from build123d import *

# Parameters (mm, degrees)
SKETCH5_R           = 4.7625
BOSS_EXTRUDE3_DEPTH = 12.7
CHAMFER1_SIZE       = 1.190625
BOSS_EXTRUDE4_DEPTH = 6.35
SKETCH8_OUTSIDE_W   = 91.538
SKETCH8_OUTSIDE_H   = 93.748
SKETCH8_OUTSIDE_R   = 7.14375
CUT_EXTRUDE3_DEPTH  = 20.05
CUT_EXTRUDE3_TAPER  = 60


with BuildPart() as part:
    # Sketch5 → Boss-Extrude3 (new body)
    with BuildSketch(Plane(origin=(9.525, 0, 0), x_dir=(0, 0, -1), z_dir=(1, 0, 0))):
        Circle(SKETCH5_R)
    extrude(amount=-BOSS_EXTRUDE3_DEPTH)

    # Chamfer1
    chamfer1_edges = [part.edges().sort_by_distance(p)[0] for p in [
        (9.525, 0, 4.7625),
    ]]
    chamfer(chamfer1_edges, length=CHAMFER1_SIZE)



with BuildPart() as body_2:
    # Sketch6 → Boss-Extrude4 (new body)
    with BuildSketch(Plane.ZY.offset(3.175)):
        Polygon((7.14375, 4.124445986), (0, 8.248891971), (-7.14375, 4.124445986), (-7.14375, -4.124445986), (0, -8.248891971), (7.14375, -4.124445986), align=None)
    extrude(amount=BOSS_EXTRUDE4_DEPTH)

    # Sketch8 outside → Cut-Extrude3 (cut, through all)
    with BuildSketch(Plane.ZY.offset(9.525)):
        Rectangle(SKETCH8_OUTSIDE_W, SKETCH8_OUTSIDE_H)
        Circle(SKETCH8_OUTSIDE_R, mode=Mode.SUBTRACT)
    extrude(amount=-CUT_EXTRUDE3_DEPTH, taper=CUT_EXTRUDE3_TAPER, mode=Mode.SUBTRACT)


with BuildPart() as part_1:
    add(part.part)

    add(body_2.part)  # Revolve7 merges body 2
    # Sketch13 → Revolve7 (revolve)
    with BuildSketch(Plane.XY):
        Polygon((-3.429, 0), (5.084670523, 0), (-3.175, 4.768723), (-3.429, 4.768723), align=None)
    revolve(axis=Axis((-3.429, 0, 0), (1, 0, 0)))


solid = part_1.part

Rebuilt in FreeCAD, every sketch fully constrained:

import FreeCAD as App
import Part
import Sketcher

V = App.Vector
Q = App.Units.Quantity


def edges_at(feature, points):
    """Names of the edges that pass closest to the given points."""
    edges = feature.Shape.Edges
    near = lambda p: min(range(len(edges)), key=lambda i: edges[i].distToShape(Part.Vertex(*p))[0])
    return sorted({f"Edge{near(p) + 1}" for p in points})


def add_polygon(sketch, points):
    """Adds a closed chain of lines whose ends are joined by coincident constraints."""
    first, n = sketch.GeometryCount, len(points)
    for a, b in zip(points, points[1:] + points[:1]):
        sketch.addGeometry(Part.LineSegment(App.Vector(*a, 0), App.Vector(*b, 0)), False)
    for i in range(n):
        sketch.addConstraint(Sketcher.Constraint("Coincident", first + i, 2, first + (i + 1) % n, 1))

doc = App.newDocument("Part")
body = doc.addObject("PartDesign::Body", "Body")

# Sketch on YZ plane
sketch1 = body.newObject("Sketcher::SketchObject", "Sketch")
sketch1.AttachmentSupport = (doc.getObject("YZ_Plane"), [""])
sketch1.MapMode = "FlatFace"
sketch1.AttachmentOffset = App.Placement(V(0, 0, 0.375 * 25.4), App.Rotation())
sketch1.addGeometry(Part.Circle(V(0, 0, 0), V(0, 0, 1), 4.7625), False)
sketch1.addConstraint([
    Sketcher.Constraint("Coincident", 0, 3, -1, 1),
    Sketcher.Constraint("Diameter", 0, Q("0.375 in")),
])
pad1 = body.newObject("PartDesign::Pad", "Pad")
pad1.Profile = sketch1
pad1.Length = Q("0.5 in")
pad1.Reversed = True
doc.recompute()

chamfer = body.newObject("PartDesign::Chamfer", "Chamfer")
chamfer.Base = (pad1, edges_at(pad1, [(9.525, 0, 4.763)]))
chamfer.Size = Q("0.046875 in")
body2 = doc.addObject("PartDesign::Body", "Body001")

# Sketch on YZ plane
sketch2 = body2.newObject("Sketcher::SketchObject", "Sketch001")
sketch2.AttachmentSupport = (doc.getObject("YZ_Plane001"), [""])
sketch2.MapMode = "FlatFace"
sketch2.AttachmentOffset = App.Placement(V(0, 0, -0.125 * 25.4), App.Rotation())
add_polygon(sketch2, [(4.124446, 7.14375), (8.248892, 0), (4.124446, -7.14375), (-4.124446, -7.14375), (-8.248892, 0), (-4.124446, 7.14375)])  # lines 0-5
sketch2.addConstraint([
    Sketcher.Constraint("Horizontal", 2),
    Sketcher.Constraint("Horizontal", 5),
    Sketcher.Constraint("Symmetric", 0, 2, 3, 2, -1, 1),
    Sketcher.Constraint("Symmetric", 1, 2, 4, 2, -1, 1),
    Sketcher.Constraint("PointOnObject", 0, 2, -1),
    Sketcher.Constraint("Parallel", 0, 3),
    Sketcher.Constraint("Vertical", 2, 2, 4, 2),
    Sketcher.Constraint("Angle", 0, Q("-60 deg")),
    Sketcher.Constraint("DistanceY", 1, 2, -1, 1, Q("0.28125 in")),
    Sketcher.Constraint("DistanceX", 2, 2, 2, 1, 8.248892),
])
pad2 = body2.newObject("PartDesign::Pad", "Pad001")
pad2.Profile = sketch2
pad2.Length = Q("0.25 in")
pad2.Reversed = True

# Sketch on YZ plane
sketch3 = body2.newObject("Sketcher::SketchObject", "Sketch002")
sketch3.AttachmentSupport = (doc.getObject("YZ_Plane001"), [""])
sketch3.MapMode = "FlatFace"
sketch3.AttachmentOffset = App.Placement(V(0, 0, -0.375 * 25.4), App.Rotation())
add_polygon(sketch3, [(46.874, -45.769), (-46.874, -45.769), (-46.874, 45.769), (46.874, 45.769)])  # lines 0-3
sketch3.addGeometry(Part.Circle(V(0, 0, 0), V(0, 0, 1), 7.14375), False)  # 4
sketch3.addConstraint([
    Sketcher.Constraint("Horizontal", 0),
    Sketcher.Constraint("Vertical", 1),
    Sketcher.Constraint("Horizontal", 2),
    Sketcher.Constraint("Vertical", 3),
    Sketcher.Constraint("Coincident", 4, 3, -1, 1),
    Sketcher.Constraint("Symmetric", 0, 2, 2, 2, -1, 1),
    Sketcher.Constraint("Diameter", 4, Q("0.5625 in")),
    Sketcher.Constraint("DistanceX", 0, 2, 0, 1, 93.748),
    Sketcher.Constraint("DistanceY", 1, 1, 1, 2, 91.538),
])
pocket1 = body2.newObject("PartDesign::Pocket", "Pocket")
pocket1.Profile = sketch3
pocket1.Length = 20.05
pocket1.Reversed = True
pocket1.TaperAngle = 60
doc.recompute()

boolean = body.newObject("PartDesign::Boolean", "Boolean")
boolean.Type = "Fuse"
boolean.addObjects([body2])

# Sketch on XY plane
sketch4 = body.newObject("Sketcher::SketchObject", "Sketch003")
sketch4.AttachmentSupport = (doc.getObject("XY_Plane"), [""])
sketch4.MapMode = "FlatFace"
add_polygon(sketch4, [(-3.429, 0), (5.084671, 0), (-3.175, 4.768723), (-3.429, 4.768723)])  # lines 0-3
sketch4.addConstraint([
    Sketcher.Constraint("Horizontal", 0),
    Sketcher.Constraint("Horizontal", 2),
    Sketcher.Constraint("Vertical", 3),
    Sketcher.Constraint("PointOnObject", 0, 2, -1),
    Sketcher.Constraint("Angle", 1, Q("150 deg")),
    Sketcher.Constraint("DistanceX", 2, 2, 2, 1, Q("0.01 in")),
    Sketcher.Constraint("DistanceX", 1, 2, -1, 1, Q("0.125 in")),
    Sketcher.Constraint("DistanceX", 0, 1, 0, 2, 8.513671),
])
revolution = body.newObject("PartDesign::Revolution", "Revolution")
revolution.Profile = sketch4
revolution.ReferenceAxis = (sketch4, ["H_Axis"])
revolution.Angle = 360

doc.recompute()
